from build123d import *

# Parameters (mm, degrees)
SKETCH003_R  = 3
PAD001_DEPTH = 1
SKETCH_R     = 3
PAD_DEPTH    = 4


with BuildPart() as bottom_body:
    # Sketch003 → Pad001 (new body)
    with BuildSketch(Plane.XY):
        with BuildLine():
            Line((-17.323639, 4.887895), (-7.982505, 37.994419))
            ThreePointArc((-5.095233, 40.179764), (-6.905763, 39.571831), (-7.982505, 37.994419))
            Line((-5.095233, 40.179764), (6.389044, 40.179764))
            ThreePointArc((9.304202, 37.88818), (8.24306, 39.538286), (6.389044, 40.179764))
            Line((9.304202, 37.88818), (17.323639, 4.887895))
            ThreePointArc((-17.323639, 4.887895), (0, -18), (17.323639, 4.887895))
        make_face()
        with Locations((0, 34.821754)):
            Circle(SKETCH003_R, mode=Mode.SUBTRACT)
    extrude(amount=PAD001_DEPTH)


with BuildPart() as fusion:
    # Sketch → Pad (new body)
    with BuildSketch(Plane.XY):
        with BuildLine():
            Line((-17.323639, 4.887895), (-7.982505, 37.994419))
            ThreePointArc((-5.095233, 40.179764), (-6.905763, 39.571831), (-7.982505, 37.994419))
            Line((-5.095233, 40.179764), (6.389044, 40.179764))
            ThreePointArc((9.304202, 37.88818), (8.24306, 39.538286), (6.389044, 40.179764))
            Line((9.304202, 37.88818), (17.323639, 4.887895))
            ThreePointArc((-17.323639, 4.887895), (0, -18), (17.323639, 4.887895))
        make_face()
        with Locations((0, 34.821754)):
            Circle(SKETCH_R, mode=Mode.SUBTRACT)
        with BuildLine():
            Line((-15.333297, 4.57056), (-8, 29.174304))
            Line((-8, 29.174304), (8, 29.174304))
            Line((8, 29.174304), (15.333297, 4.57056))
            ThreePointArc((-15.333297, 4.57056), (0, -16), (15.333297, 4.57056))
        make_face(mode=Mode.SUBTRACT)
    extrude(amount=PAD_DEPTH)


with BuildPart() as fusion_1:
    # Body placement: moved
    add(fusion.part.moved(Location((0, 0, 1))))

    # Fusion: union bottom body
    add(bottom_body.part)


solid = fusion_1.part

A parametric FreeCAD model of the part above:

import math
import FreeCAD as App
import Part
import Sketcher

V = App.Vector
Q = App.Units.Quantity

doc = App.newDocument("Part")
body = doc.addObject("PartDesign::Body", "Body")

# Sketch on XY plane
sketch1 = doc.addObject("Sketcher::SketchObject", "Sketch")
body.addObject(sketch1)
sketch1.AttachmentSupport = (doc.XY_Plane, [""])
sketch1.MapMode = "FlatFace"
sketch1.addGeometry([
    Part.LineSegment(V(-7.982505, 37.994419, 0), V(-17.323639, 4.887895, 0)),  # 0
    Part.ArcOfCircle(Part.Circle(V(0, 0, 0), V(0, 0, 1), 18), math.radians(164.243494), math.radians(375.756506)),  # 1
    Part.LineSegment(V(17.323639, 4.887895, 0), V(9.304202, 37.88818, 0)),  # 2
    Part.ArcOfCircle(Part.Circle(V(6.389045, 37.179765, 0), V(0, 0, 1), 2.999999), math.radians(13.658737), math.radians(90.000014)),  # 3
    Part.LineSegment(V(6.389044, 40.179764, 0), V(-5.095233, 40.179764, 0)),  # 4
    Part.ArcOfCircle(Part.Circle(V(-5.095234, 37.179765, 0), V(0, 0, 1), 2.999999), math.radians(89.999974), math.radians(164.243397)),  # 5
    Part.Circle(V(0, 34.821754, 0), V(0, 0, 1), 3),  # 6
], False)
sketch1.addConstraint([
    Sketcher.Constraint("Coincident", 0, 2, 1, 1),
    Sketcher.Constraint("Coincident", 1, 2, 2, 1),
    Sketcher.Constraint("Coincident", 2, 2, 3, 1),
    Sketcher.Constraint("Coincident", 3, 2, 4, 1),
    Sketcher.Constraint("Coincident", 4, 2, 5, 1),
    Sketcher.Constraint("Coincident", 5, 2, 0, 1),
    Sketcher.Constraint("Horizontal", 4),
    Sketcher.Constraint("Coincident", 1, 3, -1, 1),
    Sketcher.Constraint("PointOnObject", 6, 3, -2),
    Sketcher.Constraint("Diameter", 6, Q("6 mm")),
    Sketcher.Constraint("Radius", 1, Q("18 mm")),
    Sketcher.Constraint("Radius", 3, Q("2.999999 mm")),
    Sketcher.Constraint("Radius", 5, Q("2.999999 mm")),
    Sketcher.Constraint("Distance", 0, Q("34.399109 mm")),
    Sketcher.Constraint("DistanceX", 4, 2, 4, 1, Q("11.484277 mm")),
    Sketcher.Constraint("DistanceX", 0, 2, -1, 1, Q("17.323639 mm")),
    Sketcher.Constraint("DistanceX", -1, 1, 1, 2, Q("17.323639 mm")),
    Sketcher.Constraint("DistanceY", -1, 1, 2, 2, Q("37.88818 mm")),
    Sketcher.Constraint("DistanceY", -1, 1, 5, 2, Q("37.994419 mm")),
    Sketcher.Constraint("DistanceX", 5, 3, 3, 3, Q("11.484279 mm")),
    Sketcher.Constraint("DistanceY", 6, 3, 5, 3, Q("2.358011 mm")),
    Sketcher.Constraint("DistanceY", 0, 2, 5, 3, Q("32.29187 mm")),
    Sketcher.Constraint("DistanceX", 5, 3, 3, 2, Q("11.484278 mm")),
])
pad1 = doc.addObject("PartDesign::Pad", "Pad")
body.addObject(pad1)
pad1.Profile = sketch1
pad1.Length = 1
body2 = doc.addObject("PartDesign::Body", "Body001")

# Sketch on XY plane
sketch2 = doc.addObject("Sketcher::SketchObject", "Sketch001")
body2.addObject(sketch2)
sketch2.AttachmentSupport = (doc.getObject("XY_Plane001"), [""])
sketch2.MapMode = "FlatFace"
sketch2.addGeometry([
    Part.LineSegment(V(-7.982505, 37.994419, 0), V(-17.323639, 4.887895, 0)),  # 0
    Part.ArcOfCircle(Part.Circle(V(0, 0, 0), V(0, 0, 1), 18), math.radians(164.243494), math.radians(375.756506)),  # 1
    Part.LineSegment(V(17.323639, 4.887895, 0), V(9.304202, 37.88818, 0)),  # 2
    Part.ArcOfCircle(Part.Circle(V(6.389045, 37.179765, 0), V(0, 0, 1), 2.999999), math.radians(13.658737), math.radians(90.000014)),  # 3
    Part.LineSegment(V(6.389044, 40.179764, 0), V(-5.095233, 40.179764, 0)),  # 4
    Part.ArcOfCircle(Part.Circle(V(-5.095234, 37.179765, 0), V(0, 0, 1), 2.999999), math.radians(89.999974), math.radians(164.243397)),  # 5
    Part.LineSegment(V(-15.333297, 4.57056, 0), V(-8, 29.174304, 0)),  # 6
    Part.LineSegment(V(-8, 29.174304, 0), V(8, 29.174304, 0)),  # 7
    Part.LineSegment(V(8, 29.174304, 0), V(15.333297, 4.57056, 0)),  # 8
    Part.ArcOfCircle(Part.Circle(V(0, 0, 0), V(0, 0, 1), 16), math.radians(163.401698), math.radians(376.598302)),  # 9
    Part.Circle(V(0, 34.821754, 0), V(0, 0, 1), 3),  # 10
], False)
sketch2.addConstraint([
    Sketcher.Constraint("Coincident", 0, 2, 1, 1),
    Sketcher.Constraint("Coincident", 1, 2, 2, 1),
    Sketcher.Constraint("Coincident", 2, 2, 3, 1),
    Sketcher.Constraint("Coincident", 3, 2, 4, 1),
    Sketcher.Constraint("Coincident", 4, 2, 5, 1),
    Sketcher.Constraint("Coincident", 5, 2, 0, 1),
    Sketcher.Constraint("Coincident", 6, 2, 7, 1),
    Sketcher.Constraint("Coincident", 7, 2, 8, 1),
    Sketcher.Constraint("Coincident", 8, 2, 9, 2),
    Sketcher.Constraint("Coincident", 9, 1, 6, 1),
    Sketcher.Constraint("Horizontal", 4),
    Sketcher.Constraint("Horizontal", 7),
    Sketcher.Constraint("Coincident", 1, 3, -1, 1),
    Sketcher.Constraint("Coincident", 9, 3, -1, 1),
    Sketcher.Constraint("PointOnObject", 10, 3, -2),
    Sketcher.Constraint("Diameter", 10, Q("6 mm")),
    Sketcher.Constraint("Radius", 1, Q("18 mm")),
    Sketcher.Constraint("Radius", 3, Q("2.999999 mm")),
    Sketcher.Constraint("Radius", 5, Q("2.999999 mm")),
    Sketcher.Constraint("Radius", 9, Q("16 mm")),
    Sketcher.Constraint("DistanceX", 7, 1, 7, 2, Q("16 mm")),
    Sketcher.Constraint("DistanceX", 6, 2, -1, 1, Q("8 mm")),
    Sketcher.Constraint("Distance", 0, Q("34.399109 mm")),
    Sketcher.Constraint("Distance", 6, Q("25.673361 mm")),
    Sketcher.Constraint("Distance", 8, Q("25.673361 mm")),
    Sketcher.Constraint("DistanceX", 4, 2, 4, 1, Q("11.484277 mm")),
    Sketcher.Constraint("DistanceX", 0, 2, -1, 1, Q("17.323639 mm")),
    Sketcher.Constraint("DistanceX", -1, 1, 1, 2, Q("17.323639 mm")),
    Sketcher.Constraint("DistanceY", -1, 1, 2, 2, Q("37.88818 mm")),
    Sketcher.Constraint("DistanceY", -1, 1, 5, 2, Q("37.994419 mm")),
    Sketcher.Constraint("DistanceY", -1, 1, 8, 2, Q("4.57056 mm")),
    Sketcher.Constraint("DistanceX", 5, 3, 3, 3, Q("11.484279 mm")),
    Sketcher.Constraint("DistanceY", 10, 3, 5, 3, Q("2.358011 mm")),
    Sketcher.Constraint("DistanceY", 0, 2, 5, 3, Q("32.29187 mm")),
    Sketcher.Constraint("DistanceX", 5, 3, 3, 2, Q("11.484278 mm")),
])
pad2 = doc.addObject("PartDesign::Pad", "Pad001")
body2.addObject(pad2)
pad2.Profile = sketch2
pad2.Length = 4
body3 = doc.addObject("PartDesign::Body", "Body002")
doc.recompute()

body2.Placement = App.Placement(V(0, 0, 1), App.Rotation(V(0, 0, 1), 0))
boolean = doc.addObject("PartDesign::Boolean", "Boolean")
body3.addObject(boolean)
boolean.Type = "Fuse"
boolean.addObjects([body2])
doc.recompute()

boolean2 = doc.addObject("PartDesign::Boolean", "Boolean001")
body3.addObject(boolean2)
boolean2.Type = "Fuse"
boolean2.addObjects([body])

doc.recompute()
